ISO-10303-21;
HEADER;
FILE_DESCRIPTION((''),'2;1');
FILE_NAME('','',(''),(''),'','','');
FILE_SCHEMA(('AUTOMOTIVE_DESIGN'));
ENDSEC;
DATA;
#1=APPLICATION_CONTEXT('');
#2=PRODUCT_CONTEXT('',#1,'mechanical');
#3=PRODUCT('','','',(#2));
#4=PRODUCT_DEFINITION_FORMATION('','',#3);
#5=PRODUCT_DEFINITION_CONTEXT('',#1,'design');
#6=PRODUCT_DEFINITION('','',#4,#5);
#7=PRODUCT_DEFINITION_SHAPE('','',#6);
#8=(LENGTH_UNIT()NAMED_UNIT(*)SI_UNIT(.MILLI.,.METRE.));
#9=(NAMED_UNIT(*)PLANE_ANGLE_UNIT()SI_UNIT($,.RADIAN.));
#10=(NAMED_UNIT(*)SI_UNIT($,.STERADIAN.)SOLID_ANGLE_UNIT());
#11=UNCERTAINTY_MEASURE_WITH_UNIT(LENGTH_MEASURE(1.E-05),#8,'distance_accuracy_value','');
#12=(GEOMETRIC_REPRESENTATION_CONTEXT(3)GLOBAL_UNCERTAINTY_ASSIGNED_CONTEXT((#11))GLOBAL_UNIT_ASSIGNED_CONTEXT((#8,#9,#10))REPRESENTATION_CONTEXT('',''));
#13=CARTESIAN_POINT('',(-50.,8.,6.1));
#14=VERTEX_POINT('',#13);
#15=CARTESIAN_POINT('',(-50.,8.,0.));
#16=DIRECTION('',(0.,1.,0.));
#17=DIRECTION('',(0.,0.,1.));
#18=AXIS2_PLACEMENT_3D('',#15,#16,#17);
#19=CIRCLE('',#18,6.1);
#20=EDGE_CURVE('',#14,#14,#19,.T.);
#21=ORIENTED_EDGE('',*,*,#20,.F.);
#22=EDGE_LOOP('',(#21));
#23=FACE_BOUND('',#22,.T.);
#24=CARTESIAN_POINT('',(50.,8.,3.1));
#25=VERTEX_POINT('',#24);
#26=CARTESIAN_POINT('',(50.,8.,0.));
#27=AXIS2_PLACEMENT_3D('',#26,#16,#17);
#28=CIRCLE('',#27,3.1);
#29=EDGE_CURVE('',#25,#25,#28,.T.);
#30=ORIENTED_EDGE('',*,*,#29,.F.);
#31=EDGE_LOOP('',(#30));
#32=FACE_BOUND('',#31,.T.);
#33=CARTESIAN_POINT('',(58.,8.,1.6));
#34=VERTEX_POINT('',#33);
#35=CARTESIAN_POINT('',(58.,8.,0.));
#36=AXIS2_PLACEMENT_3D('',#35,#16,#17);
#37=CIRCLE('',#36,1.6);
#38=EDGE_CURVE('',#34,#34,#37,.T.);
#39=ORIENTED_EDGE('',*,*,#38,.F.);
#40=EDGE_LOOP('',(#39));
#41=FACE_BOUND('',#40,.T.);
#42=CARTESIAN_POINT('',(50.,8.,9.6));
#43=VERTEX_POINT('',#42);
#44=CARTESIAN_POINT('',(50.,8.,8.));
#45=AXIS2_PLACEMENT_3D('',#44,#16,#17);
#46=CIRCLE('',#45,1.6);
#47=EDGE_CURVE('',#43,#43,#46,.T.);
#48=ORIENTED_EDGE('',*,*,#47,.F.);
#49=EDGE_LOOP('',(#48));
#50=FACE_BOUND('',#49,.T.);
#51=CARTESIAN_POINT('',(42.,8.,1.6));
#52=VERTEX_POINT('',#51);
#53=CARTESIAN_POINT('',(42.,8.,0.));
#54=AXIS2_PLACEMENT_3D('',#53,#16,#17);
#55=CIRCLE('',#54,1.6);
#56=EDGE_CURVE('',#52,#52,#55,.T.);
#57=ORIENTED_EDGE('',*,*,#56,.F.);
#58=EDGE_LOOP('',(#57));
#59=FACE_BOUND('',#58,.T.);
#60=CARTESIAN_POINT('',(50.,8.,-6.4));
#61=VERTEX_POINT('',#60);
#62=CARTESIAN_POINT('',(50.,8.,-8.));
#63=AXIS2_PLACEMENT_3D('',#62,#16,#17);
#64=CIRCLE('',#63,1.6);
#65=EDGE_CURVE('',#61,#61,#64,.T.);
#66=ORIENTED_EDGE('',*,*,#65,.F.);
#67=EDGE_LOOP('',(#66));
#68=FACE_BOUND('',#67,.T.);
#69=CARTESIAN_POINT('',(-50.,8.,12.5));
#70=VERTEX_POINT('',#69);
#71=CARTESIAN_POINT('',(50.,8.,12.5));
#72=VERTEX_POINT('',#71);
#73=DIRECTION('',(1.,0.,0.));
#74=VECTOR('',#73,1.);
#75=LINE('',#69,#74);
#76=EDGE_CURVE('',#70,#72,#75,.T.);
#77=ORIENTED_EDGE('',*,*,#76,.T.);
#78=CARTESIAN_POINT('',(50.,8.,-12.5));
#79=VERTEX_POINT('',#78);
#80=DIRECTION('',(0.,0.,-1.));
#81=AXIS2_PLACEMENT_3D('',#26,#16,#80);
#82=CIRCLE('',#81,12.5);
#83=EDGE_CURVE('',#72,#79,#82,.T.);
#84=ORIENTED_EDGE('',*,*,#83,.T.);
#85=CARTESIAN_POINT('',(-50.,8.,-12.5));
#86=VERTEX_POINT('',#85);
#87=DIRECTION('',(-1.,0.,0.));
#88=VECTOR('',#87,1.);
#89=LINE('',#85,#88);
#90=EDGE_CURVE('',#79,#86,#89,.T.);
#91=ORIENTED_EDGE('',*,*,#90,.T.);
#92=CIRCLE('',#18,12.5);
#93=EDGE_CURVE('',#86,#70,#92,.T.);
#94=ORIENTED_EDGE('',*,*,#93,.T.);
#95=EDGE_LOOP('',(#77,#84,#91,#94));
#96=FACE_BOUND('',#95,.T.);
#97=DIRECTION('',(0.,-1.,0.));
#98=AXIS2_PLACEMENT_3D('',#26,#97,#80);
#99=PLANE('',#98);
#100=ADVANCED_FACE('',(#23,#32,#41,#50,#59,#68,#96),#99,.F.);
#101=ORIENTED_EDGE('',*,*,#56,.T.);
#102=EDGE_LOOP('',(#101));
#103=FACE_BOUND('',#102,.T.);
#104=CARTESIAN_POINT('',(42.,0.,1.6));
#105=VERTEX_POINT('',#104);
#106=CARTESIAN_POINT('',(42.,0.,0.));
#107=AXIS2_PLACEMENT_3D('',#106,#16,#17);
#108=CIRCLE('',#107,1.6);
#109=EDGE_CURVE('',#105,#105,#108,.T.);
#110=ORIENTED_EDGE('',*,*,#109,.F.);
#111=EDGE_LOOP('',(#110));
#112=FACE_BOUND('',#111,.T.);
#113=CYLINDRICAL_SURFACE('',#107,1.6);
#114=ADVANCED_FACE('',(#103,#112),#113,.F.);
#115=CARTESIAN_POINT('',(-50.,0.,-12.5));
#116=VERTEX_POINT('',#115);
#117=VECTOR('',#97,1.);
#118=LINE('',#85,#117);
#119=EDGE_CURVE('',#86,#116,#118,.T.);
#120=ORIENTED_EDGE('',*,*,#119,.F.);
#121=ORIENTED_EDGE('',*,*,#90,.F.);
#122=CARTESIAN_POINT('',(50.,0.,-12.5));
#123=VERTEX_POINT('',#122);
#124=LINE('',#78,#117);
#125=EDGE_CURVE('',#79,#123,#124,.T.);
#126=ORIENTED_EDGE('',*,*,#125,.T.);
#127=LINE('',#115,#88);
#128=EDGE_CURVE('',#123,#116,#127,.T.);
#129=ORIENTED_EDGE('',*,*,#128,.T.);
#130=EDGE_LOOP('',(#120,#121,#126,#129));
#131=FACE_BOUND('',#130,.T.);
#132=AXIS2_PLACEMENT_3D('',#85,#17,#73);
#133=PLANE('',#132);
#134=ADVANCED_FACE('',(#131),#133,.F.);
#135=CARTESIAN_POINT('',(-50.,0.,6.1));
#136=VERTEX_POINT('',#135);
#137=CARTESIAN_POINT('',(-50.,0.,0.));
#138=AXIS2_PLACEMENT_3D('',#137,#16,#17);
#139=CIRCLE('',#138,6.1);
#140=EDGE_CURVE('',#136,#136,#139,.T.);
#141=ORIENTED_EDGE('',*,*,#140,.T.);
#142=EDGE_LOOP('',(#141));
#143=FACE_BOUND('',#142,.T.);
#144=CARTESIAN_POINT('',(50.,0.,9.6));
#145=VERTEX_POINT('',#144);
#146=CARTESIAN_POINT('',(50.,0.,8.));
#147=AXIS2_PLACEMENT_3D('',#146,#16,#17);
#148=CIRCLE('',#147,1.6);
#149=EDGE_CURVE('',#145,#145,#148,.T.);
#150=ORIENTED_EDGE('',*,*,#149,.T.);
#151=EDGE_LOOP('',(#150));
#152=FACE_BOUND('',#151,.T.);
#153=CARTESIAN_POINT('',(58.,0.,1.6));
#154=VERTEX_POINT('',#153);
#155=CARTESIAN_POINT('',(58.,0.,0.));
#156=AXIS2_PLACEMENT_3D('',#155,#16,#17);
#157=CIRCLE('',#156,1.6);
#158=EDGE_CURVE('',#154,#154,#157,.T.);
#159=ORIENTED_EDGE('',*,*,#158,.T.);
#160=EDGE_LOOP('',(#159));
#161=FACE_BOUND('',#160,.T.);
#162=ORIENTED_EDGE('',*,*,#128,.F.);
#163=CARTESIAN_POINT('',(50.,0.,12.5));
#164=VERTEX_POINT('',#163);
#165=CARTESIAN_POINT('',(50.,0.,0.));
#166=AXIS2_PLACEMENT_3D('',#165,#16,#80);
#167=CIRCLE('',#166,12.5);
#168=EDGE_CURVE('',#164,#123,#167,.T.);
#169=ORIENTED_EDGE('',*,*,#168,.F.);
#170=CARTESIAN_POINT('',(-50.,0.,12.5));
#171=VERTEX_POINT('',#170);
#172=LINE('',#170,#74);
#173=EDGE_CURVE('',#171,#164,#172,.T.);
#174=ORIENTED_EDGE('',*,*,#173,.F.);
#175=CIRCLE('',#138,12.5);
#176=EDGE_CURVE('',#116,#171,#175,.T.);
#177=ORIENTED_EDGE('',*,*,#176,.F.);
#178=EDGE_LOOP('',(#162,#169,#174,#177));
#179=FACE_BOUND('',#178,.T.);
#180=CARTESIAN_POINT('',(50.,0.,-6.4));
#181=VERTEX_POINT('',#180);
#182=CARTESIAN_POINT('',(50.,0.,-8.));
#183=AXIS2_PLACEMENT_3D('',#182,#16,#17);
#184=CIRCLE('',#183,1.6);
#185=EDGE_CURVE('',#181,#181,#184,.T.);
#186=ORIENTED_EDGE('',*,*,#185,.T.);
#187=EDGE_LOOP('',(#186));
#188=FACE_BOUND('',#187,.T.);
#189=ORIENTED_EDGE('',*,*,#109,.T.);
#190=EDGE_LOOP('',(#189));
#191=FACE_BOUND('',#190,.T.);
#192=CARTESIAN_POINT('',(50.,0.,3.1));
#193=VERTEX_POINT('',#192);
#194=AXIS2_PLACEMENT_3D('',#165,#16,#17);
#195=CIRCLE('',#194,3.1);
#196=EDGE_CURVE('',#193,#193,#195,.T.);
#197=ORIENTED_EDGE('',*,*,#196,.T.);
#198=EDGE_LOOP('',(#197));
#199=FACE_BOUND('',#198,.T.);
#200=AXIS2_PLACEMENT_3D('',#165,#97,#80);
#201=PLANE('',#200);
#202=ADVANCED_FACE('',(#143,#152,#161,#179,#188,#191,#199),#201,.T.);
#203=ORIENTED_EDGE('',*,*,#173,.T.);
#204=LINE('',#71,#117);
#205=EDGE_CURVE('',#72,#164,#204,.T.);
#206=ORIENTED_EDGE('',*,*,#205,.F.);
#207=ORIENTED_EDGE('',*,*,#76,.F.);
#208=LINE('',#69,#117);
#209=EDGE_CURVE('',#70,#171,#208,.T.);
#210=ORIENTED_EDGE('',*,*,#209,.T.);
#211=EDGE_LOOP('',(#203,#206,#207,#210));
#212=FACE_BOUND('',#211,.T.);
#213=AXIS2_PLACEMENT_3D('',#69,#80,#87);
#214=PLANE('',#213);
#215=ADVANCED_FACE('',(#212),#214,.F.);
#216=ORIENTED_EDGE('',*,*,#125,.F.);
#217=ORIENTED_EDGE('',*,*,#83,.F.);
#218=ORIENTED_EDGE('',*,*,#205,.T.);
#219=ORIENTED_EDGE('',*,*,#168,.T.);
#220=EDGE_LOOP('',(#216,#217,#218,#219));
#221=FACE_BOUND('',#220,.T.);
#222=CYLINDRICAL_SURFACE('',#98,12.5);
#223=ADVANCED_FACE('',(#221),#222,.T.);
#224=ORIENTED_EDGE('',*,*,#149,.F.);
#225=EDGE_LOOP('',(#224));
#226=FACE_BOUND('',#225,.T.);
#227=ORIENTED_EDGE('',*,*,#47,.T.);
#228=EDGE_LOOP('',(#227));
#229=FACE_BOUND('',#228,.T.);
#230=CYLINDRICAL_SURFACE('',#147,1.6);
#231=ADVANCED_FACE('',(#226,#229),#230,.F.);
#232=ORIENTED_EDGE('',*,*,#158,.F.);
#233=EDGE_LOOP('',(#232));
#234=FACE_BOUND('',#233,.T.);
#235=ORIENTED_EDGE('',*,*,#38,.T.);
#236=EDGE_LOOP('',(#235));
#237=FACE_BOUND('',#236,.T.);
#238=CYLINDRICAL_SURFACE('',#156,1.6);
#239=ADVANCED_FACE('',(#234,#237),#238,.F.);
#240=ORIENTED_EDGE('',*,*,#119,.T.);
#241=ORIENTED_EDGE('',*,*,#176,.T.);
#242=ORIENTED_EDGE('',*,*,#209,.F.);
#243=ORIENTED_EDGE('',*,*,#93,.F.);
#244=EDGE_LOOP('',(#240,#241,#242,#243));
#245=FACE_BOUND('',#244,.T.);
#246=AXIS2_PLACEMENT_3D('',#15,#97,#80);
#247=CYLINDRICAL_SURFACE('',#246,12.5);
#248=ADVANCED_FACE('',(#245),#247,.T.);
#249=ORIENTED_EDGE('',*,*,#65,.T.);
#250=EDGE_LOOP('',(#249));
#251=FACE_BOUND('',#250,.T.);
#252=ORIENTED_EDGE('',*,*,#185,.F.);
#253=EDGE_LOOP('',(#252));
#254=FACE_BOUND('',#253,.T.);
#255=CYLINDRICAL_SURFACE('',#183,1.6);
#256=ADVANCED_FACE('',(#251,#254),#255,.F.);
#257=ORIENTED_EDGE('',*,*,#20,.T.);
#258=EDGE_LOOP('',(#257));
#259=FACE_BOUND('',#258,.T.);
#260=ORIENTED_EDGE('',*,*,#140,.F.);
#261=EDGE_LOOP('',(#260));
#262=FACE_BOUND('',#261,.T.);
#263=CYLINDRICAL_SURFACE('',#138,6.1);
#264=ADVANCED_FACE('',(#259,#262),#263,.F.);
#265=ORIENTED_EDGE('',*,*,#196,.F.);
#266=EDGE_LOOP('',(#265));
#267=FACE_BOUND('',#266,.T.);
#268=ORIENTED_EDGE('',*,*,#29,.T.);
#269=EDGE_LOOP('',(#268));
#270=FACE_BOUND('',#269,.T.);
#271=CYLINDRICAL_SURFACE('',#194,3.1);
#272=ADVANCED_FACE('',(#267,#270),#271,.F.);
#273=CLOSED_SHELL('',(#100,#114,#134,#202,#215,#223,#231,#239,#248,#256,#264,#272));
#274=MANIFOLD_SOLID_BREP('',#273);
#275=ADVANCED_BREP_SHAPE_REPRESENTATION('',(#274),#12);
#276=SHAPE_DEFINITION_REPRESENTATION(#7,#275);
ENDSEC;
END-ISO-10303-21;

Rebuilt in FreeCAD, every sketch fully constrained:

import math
import FreeCAD as App
import Part
import Sketcher
from FreeCAD import Vector

doc = App.newDocument("Part")
body = doc.addObject("PartDesign::Body", "Body")

# Sketch on XZ plane
sketch1 = body.newObject("Sketcher::SketchObject", "Sketch")
sketch1.AttachmentSupport = (doc.getObject("XZ_Plane"), [""])
sketch1.MapMode = "FlatFace"
sketch1.addGeometry([
    Part.LineSegment(Vector(-50, 12, 0), Vector(50, 12, 0)),
    Part.ArcOfCircle(Part.Circle(Vector(50, 0, 0), Vector(0, 0, 1), 12), math.radians(-90), math.radians(90)),
    Part.LineSegment(Vector(50, -12, 0), Vector(-50, -12, 0)),
    Part.ArcOfCircle(Part.Circle(Vector(-50, 0, 0), Vector(0, 0, 1), 12), math.radians(90), math.radians(270)),
], False)
sketch1.addConstraint([
    Sketcher.Constraint("Tangent", 0, 2, 1, 2),
    Sketcher.Constraint("Tangent", 1, 1, 2, 1),
    Sketcher.Constraint("Tangent", 2, 2, 3, 2),
    Sketcher.Constraint("Tangent", 3, 1, 0, 1),
    Sketcher.Constraint("Horizontal", 0),
    Sketcher.Constraint("Horizontal", 2),
    Sketcher.Constraint("Symmetric", 1, 3, 3, 3, -1, 1),
    Sketcher.Constraint("Radius", 1, 12.5),
    Sketcher.Constraint("DistanceX", 0, 1, 0, 2, 100.0),
])
pad1 = body.newObject("PartDesign::Pad", "Pad")
pad1.Profile = sketch1
pad1.Length = 8
pad1.Reversed = True

# Sketch on XZ plane
sketch2 = body.newObject("Sketcher::SketchObject", "Sketch001")
sketch2.AttachmentSupport = (doc.getObject("XZ_Plane"), [""])
sketch2.MapMode = "FlatFace"
sketch2.AttachmentOffset = App.Placement(Vector(0, 0, -8), App.Rotation())
sketch2.addGeometry([
    Part.Circle(Vector(-50, 0, 0), Vector(0, 0, 1), 3.1),  # 0
    Part.Circle(Vector(50, -8, 0), Vector(0, 0, 1), 1.6),  # 1
    Part.Circle(Vector(58, 0, 0), Vector(0, 0, 1), 1.6),  # 2
    Part.Circle(Vector(50, 8, 0), Vector(0, 0, 1), 1.6),  # 3
    Part.Circle(Vector(42, 0, 0), Vector(0, 0, 1), 1.6),  # 4
    Part.Circle(Vector(50, 0, 0), Vector(0, 0, 1), 3.1),  # 5
], False)
sketch2.addConstraint([
    Sketcher.Constraint("Equal", 1, 2),
    Sketcher.Constraint("Equal", 2, 3),
    Sketcher.Constraint("Equal", 3, 4),
    Sketcher.Constraint("Equal", 0, 5),
    Sketcher.Constraint("Symmetric", 0, 3, 5, 3, -1, 1),
    Sketcher.Constraint("Symmetric", 1, 3, 3, 3, -1),
    Sketcher.Constraint("PointOnObject", 0, 3, -1),
    Sketcher.Constraint("PointOnObject", 2, 3, -1),
    Sketcher.Constraint("PointOnObject", 4, 3, -1),
    Sketcher.Constraint("Vertical", 3, 3, 5, 3),
    Sketcher.Constraint("Diameter", 0, 6.2),
    Sketcher.Constraint("Diameter", 1, 3.2),
    Sketcher.Constraint("DistanceX", 0, 3, -1, 1, 50.0),
    Sketcher.Constraint("DistanceY", 1, 3, -1, 1, 8.0),
    Sketcher.Constraint("DistanceX", -1, 1, 2, 3, 58.0),
    Sketcher.Constraint("DistanceX", -1, 1, 4, 3, 42.0),
])
pocket1 = body.newObject("PartDesign::Pocket", "Pocket")
pocket1.Profile = sketch2
pocket1.Type = "ThroughAll"
pocket1.Reversed = True

# Sketch on XZ plane
sketch3 = body.newObject("Sketcher::SketchObject", "Sketch002")
sketch3.AttachmentSupport = (doc.getObject("XZ_Plane"), [""])
sketch3.MapMode = "FlatFace"
sketch3.AttachmentOffset = App.Placement(Vector(0, 0, -8), App.Rotation())
sketch3.addGeometry(Part.Circle(Vector(-50, 0, 0), Vector(0, 0, 1), 6), False)
sketch3.addConstraint([
    Sketcher.Constraint("PointOnObject", 0, 3, -1),
    Sketcher.Constraint("Diameter", 0, 12.2),
    Sketcher.Constraint("DistanceX", 0, 3, -1, 1, 50.0),
])
pocket2 = body.newObject("PartDesign::Pocket", "Pocket001")
pocket2.Profile = sketch3
pocket2.Type = "ThroughAll"
pocket2.Reversed = True

doc.recompute()
